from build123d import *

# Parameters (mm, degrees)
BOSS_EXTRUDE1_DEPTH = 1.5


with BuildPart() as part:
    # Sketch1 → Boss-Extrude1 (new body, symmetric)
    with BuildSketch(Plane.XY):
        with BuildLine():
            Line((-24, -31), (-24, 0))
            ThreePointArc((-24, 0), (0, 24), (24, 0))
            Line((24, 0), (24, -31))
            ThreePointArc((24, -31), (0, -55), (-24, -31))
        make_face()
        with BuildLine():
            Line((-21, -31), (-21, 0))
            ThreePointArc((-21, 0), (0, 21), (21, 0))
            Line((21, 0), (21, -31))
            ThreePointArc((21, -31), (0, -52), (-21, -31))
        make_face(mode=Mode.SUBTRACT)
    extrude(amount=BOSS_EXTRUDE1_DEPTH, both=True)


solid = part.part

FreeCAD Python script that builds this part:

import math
import FreeCAD as App
import Part
import Sketcher
Q = App.Units.Quantity

doc = App.newDocument("Part")
params = doc.addObject("Spreadsheet::Sheet", "Params")
for row, (alias, value) in enumerate([
    ("sketch1_radius", "24 mm"),
    ("sketch1_radius2", "21 mm"),
    ("sketch1_height", "31 mm"),
    ("pad1_length", "3 mm"),
], start=1):
    params.set(f"A{row}", alias)
    params.set(f"B{row}", "=" + value)
    params.setAlias(f"B{row}", alias)

body = doc.addObject("PartDesign::Body", "Body")

# Sketch on XY plane
sketch1 = body.newObject("Sketcher::SketchObject", "Sketch")
sketch1.AttachmentSupport = (doc.getObject("XY_Plane"), [""])
sketch1.MapMode = "FlatFace"
sketch1.addGeometry([
    Part.LineSegment(App.Vector(-24, 0, 0), App.Vector(-24, -31, 0)),  # 0
    Part.ArcOfCircle(Part.Circle(App.Vector(0, -31, 0), App.Vector(0, 0, 1), 24), math.radians(180), math.radians(360)),  # 1
    Part.LineSegment(App.Vector(24, -31, 0), App.Vector(24, 0, 0)),  # 2
    Part.ArcOfCircle(Part.Circle(App.Vector(0, 0, 0), App.Vector(0, 0, 1), 24), math.radians(0), math.radians(180)),  # 3
    Part.LineSegment(App.Vector(-21, -31, 0), App.Vector(-21, 0, 0)),  # 4
    Part.ArcOfCircle(Part.Circle(App.Vector(0, 0, 0), App.Vector(0, 0, 1), 21), math.radians(0), math.radians(180)),  # 5
    Part.LineSegment(App.Vector(21, 0, 0), App.Vector(21, -31, 0)),  # 6
    Part.ArcOfCircle(Part.Circle(App.Vector(0, -31, 0), App.Vector(0, 0, 1), 21), math.radians(180), math.radians(360)),  # 7
], False)
sketch1.addConstraint([
    Sketcher.Constraint("Tangent", 0, 2, 1, 1),
    Sketcher.Constraint("Tangent", 1, 2, 2, 1),
    Sketcher.Constraint("Tangent", 2, 2, 3, 1),
    Sketcher.Constraint("Tangent", 3, 2, 0, 1),
    Sketcher.Constraint("Tangent", 4, 2, 5, 2),
    Sketcher.Constraint("Tangent", 5, 1, 6, 1),
    Sketcher.Constraint("Tangent", 6, 2, 7, 2),
    Sketcher.Constraint("Tangent", 7, 1, 4, 1),
    Sketcher.Constraint("Vertical", 0),
    Sketcher.Constraint("Vertical", 2),
    Sketcher.Constraint("Vertical", 4),
    Sketcher.Constraint("Vertical", 6),
    Sketcher.Constraint("Coincident", 3, 3, -1, 1),
    Sketcher.Constraint("Coincident", 5, 3, -1, 1),
    Sketcher.Constraint("Horizontal", 7, 3, 0, 2),
    Sketcher.Constraint("Radius", 1, Q("24 mm")),
    Sketcher.Constraint("Radius", 5, Q("21 mm")),
    Sketcher.Constraint("DistanceY", 0, 2, 0, 1, Q("31 mm")),
])
sketch1.setExpression("Constraints[15]", "Params.sketch1_radius")
sketch1.setExpression("Constraints[16]", "Params.sketch1_radius2")
sketch1.setExpression("Constraints[17]", "Params.sketch1_height")
pad1 = body.newObject("PartDesign::Pad", "Pad")
pad1.Profile = sketch1
pad1.setExpression("Length", "Params.pad1_length")
pad1.Midplane = True

doc.recompute()
